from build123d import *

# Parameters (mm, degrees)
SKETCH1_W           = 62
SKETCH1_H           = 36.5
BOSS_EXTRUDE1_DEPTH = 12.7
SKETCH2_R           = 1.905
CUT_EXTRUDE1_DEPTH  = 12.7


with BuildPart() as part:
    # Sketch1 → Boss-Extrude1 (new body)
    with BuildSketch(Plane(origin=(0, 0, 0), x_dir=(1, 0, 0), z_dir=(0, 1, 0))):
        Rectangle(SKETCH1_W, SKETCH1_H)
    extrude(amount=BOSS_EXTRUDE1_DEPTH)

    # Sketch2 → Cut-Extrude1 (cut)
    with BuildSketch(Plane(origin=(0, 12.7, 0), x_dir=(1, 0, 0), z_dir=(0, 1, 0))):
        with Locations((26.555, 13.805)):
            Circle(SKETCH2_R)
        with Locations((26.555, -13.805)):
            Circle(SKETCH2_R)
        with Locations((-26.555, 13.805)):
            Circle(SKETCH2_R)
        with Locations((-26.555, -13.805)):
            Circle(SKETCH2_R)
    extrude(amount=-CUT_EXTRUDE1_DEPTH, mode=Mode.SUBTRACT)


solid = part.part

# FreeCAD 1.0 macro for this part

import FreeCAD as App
import Part
import Sketcher

V = App.Vector

doc = App.newDocument("Part")
body = doc.addObject("PartDesign::Body", "Body")

sketch1 = doc.addObject("Sketcher::SketchObject", "Sketch")
body.addObject(sketch1)
sketch1.AttachmentSupport = (doc.XZ_Plane, [""])
sketch1.MapMode = "FlatFace"
sketch1.addGeometry([
    Part.LineSegment(V(-31, -18, 0), V(-31, 18, 0)),
    Part.LineSegment(V(-31, 18, 0), V(31, 18, 0)),
    Part.LineSegment(V(31, 18, 0), V(31, -18, 0)),
    Part.LineSegment(V(31, -18, 0), V(-31, -18, 0)),
], False)
sketch1.addConstraint([
    Sketcher.Constraint("Coincident", 0, 2, 1, 1),
    Sketcher.Constraint("Coincident", 1, 2, 2, 1),
    Sketcher.Constraint("Coincident", 2, 2, 3, 1),
    Sketcher.Constraint("Coincident", 3, 2, 0, 1),
    Sketcher.Constraint("Vertical", 0),
    Sketcher.Constraint("Horizontal", 1),
    Sketcher.Constraint("Vertical", 2),
    Sketcher.Constraint("Horizontal", 3),
    Sketcher.Constraint("Symmetric", 0, 2, 2, 2, -1, 1),
    Sketcher.Constraint("DistanceX", 1, 1, 1, 2, 62.0),
    Sketcher.Constraint("DistanceY", 0, 1, 0, 2, 36.5),
])
pad1 = doc.addObject("PartDesign::Pad", "Pad")
body.addObject(pad1)
pad1.Profile = sketch1
pad1.Length = 12.7
pad1.Reversed = True

sketch2 = doc.addObject("Sketcher::SketchObject", "Sketch001")
body.addObject(sketch2)
sketch2.AttachmentSupport = (doc.XZ_Plane, [""])
sketch2.MapMode = "FlatFace"
sketch2.AttachmentOffset = App.Placement(V(0, 0, -12.7), App.Rotation())
sketch2.addGeometry([
    Part.Circle(V(26.6, -13.8, 0), V(0, 0, 1), 1.9),
    Part.Circle(V(26.6, 13.8, 0), V(0, 0, 1), 1.9),
    Part.Circle(V(-26.6, -13.8, 0), V(0, 0, 1), 1.9),
    Part.Circle(V(-26.6, 13.8, 0), V(0, 0, 1), 1.9),
], False)
sketch2.addConstraint([
    Sketcher.Constraint("Equal", 0, 1),
    Sketcher.Constraint("Equal", 1, 2),
    Sketcher.Constraint("Equal", 2, 3),
    Sketcher.Constraint("Symmetric", 1, 3, 2, 3, -1, 1),
    Sketcher.Constraint("Symmetric", 0, 3, 3, 3, -1, 1),
    Sketcher.Constraint("Symmetric", 0, 3, 2, 3, -2),
    Sketcher.Constraint("Diameter", 0, 3.81),
    Sketcher.Constraint("DistanceY", 0, 3, 1, 3, 27.61),
    Sketcher.Constraint("DistanceX", 2, 3, 0, 3, 53.11),
])
pocket1 = doc.addObject("PartDesign::Pocket", "Pocket")
body.addObject(pocket1)
pocket1.Profile = sketch2
pocket1.Length = 12.7
pocket1.Reversed = True

doc.recompute()
